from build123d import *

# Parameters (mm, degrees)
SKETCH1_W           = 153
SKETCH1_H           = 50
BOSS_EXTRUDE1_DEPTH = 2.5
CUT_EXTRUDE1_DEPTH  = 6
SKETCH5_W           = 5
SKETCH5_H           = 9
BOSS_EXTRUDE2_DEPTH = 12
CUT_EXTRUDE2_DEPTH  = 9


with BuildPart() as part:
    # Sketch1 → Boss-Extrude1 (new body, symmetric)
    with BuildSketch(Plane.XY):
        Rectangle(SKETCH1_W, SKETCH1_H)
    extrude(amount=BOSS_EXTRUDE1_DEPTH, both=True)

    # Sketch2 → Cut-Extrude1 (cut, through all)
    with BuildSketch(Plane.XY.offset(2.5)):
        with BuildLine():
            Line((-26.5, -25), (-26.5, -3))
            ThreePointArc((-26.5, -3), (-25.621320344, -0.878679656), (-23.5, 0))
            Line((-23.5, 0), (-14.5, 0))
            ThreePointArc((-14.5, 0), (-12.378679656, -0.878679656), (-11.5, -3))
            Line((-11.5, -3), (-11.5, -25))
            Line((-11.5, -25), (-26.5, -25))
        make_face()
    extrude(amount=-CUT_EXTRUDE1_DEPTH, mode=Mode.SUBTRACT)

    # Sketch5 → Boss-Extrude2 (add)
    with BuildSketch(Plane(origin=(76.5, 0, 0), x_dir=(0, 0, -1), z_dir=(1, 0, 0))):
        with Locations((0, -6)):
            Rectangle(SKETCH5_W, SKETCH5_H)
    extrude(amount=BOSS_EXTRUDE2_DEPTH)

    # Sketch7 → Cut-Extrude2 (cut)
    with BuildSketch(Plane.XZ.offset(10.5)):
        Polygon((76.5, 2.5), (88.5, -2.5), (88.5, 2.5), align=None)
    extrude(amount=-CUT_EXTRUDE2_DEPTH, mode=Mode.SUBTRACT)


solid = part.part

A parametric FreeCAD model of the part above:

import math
import FreeCAD as App
import Part
import Sketcher

doc = App.newDocument("Part")
params = doc.addObject("Spreadsheet::Sheet", "Params")
for row, (alias, value) in enumerate([
    ("sketch1_width", "153 mm"),
    ("sketch1_height", "50 mm"),
    ("pad1_length", "5 mm"),
    ("sketch2_radius", "3 mm"),
    ("sketch2_width", "15 mm"),
    ("sketch2_height", "22 mm"),
    ("sketch3_width", "9 mm"),
    ("sketch3_height", "5 mm"),
    ("pad2_length", "12 mm"),
    ("sketch4_width", "12 mm"),
    ("sketch4_height", "5 mm"),
    ("pocket2_length", "9 mm"),
], start=1):
    params.set(f"A{row}", alias)
    params.set(f"B{row}", "=" + value)
    params.setAlias(f"B{row}", alias)

body = doc.addObject("PartDesign::Body", "Body")

# Sketch on XY plane
sketch1 = body.newObject("Sketcher::SketchObject", "Sketch")
sketch1.AttachmentSupport = (doc.getObject("XY_Plane"), [""])
sketch1.MapMode = "FlatFace"
sketch1.addGeometry(Part.LineSegment(App.Vector(-76, 25, 0), App.Vector(-76, -25, 0)), False)
sketch1.addGeometry(Part.LineSegment(App.Vector(-76, -25, 0), App.Vector(76, -25, 0)), False)
sketch1.addGeometry(Part.LineSegment(App.Vector(76, -25, 0), App.Vector(76, 25, 0)), False)
sketch1.addGeometry(Part.LineSegment(App.Vector(76, 25, 0), App.Vector(-76, 25, 0)), False)
sketch1.addConstraint(Sketcher.Constraint("Coincident", 0, 2, 1, 1))
sketch1.addConstraint(Sketcher.Constraint("Coincident", 1, 2, 2, 1))
sketch1.addConstraint(Sketcher.Constraint("Coincident", 2, 2, 3, 1))
sketch1.addConstraint(Sketcher.Constraint("Coincident", 3, 2, 0, 1))
sketch1.addConstraint(Sketcher.Constraint("Vertical", 0))
sketch1.addConstraint(Sketcher.Constraint("Horizontal", 1))
sketch1.addConstraint(Sketcher.Constraint("Vertical", 2))
sketch1.addConstraint(Sketcher.Constraint("Horizontal", 3))
sketch1.addConstraint(Sketcher.Constraint("Symmetric", 0, 2, 2, 2, -1, 1))
sketch1.addConstraint(Sketcher.Constraint("DistanceX", 1, 1, 1, 2, 153.0))
sketch1.addConstraint(Sketcher.Constraint("DistanceY", 0, 2, 0, 1, 50.0))
sketch1.setExpression("Constraints[9]", "Params.sketch1_width")
sketch1.setExpression("Constraints[10]", "Params.sketch1_height")
pad1 = body.newObject("PartDesign::Pad", "Pad")
pad1.Profile = sketch1
pad1.setExpression("Length", "Params.pad1_length")
pad1.Midplane = True

# Sketch on XY plane
sketch2 = body.newObject("Sketcher::SketchObject", "Sketch001")
sketch2.AttachmentSupport = (doc.getObject("XY_Plane"), [""])
sketch2.MapMode = "FlatFace"
sketch2.AttachmentOffset = App.Placement(App.Vector(0, 0, 2.5), App.Rotation())
sketch2.addGeometry(Part.LineSegment(App.Vector(-26.5, -3, 0), App.Vector(-26.5, -25, 0)), False)
sketch2.addGeometry(Part.LineSegment(App.Vector(-26.5, -25, 0), App.Vector(-11.5, -25, 0)), False)
sketch2.addGeometry(Part.LineSegment(App.Vector(-11.5, -25, 0), App.Vector(-11.5, -3, 0)), False)
sketch2.addGeometry(Part.ArcOfCircle(Part.Circle(App.Vector(-14.5, -3, 0), App.Vector(0, 0, 1), 3), math.radians(0), math.radians(90)), False)
sketch2.addGeometry(Part.LineSegment(App.Vector(-14.5, 0, 0), App.Vector(-23.5, 0, 0)), False)
sketch2.addGeometry(Part.ArcOfCircle(Part.Circle(App.Vector(-23.5, -3, 0), App.Vector(0, 0, 1), 3), math.radians(90), math.radians(180)), False)
sketch2.addConstraint(Sketcher.Constraint("Coincident", 0, 2, 1, 1))
sketch2.addConstraint(Sketcher.Constraint("Coincident", 1, 2, 2, 1))
sketch2.addConstraint(Sketcher.Constraint("Tangent", 2, 2, 3, 1))
sketch2.addConstraint(Sketcher.Constraint("Tangent", 3, 2, 4, 1))
sketch2.addConstraint(Sketcher.Constraint("Tangent", 4, 2, 5, 1))
sketch2.addConstraint(Sketcher.Constraint("Tangent", 5, 2, 0, 1))
sketch2.addConstraint(Sketcher.Constraint("Vertical", 0))
sketch2.addConstraint(Sketcher.Constraint("Horizontal", 1))
sketch2.addConstraint(Sketcher.Constraint("Vertical", 2))
sketch2.addConstraint(Sketcher.Constraint("Horizontal", 4))
sketch2.addConstraint(Sketcher.Constraint("Equal", 3, 5))
sketch2.addConstraint(Sketcher.Constraint("PointOnObject", 3, 2, -1))
sketch2.addConstraint(Sketcher.Constraint("Radius", 3, 3.0))
sketch2.addConstraint(Sketcher.Constraint("DistanceX", 1, 1, 1, 2, 15.0))
sketch2.addConstraint(Sketcher.Constraint("DistanceY", 0, 2, 0, 1, 22.0))
sketch2.addConstraint(Sketcher.Constraint("DistanceX", 3, 3, -1, 1, 14.5))
sketch2.setExpression("Constraints[12]", "Params.sketch2_radius")
sketch2.setExpression("Constraints[13]", "Params.sketch2_width")
sketch2.setExpression("Constraints[14]", "Params.sketch2_height")
pocket1 = body.newObject("PartDesign::Pocket", "Pocket")
pocket1.Profile = sketch2
pocket1.Type = "ThroughAll"

# Sketch on YZ plane
sketch3 = body.newObject("Sketcher::SketchObject", "Sketch002")
sketch3.AttachmentSupport = (doc.getObject("YZ_Plane"), [""])
sketch3.MapMode = "FlatFace"
sketch3.AttachmentOffset = App.Placement(App.Vector(0, 0, 76.5), App.Rotation())
sketch3.addGeometry(Part.LineSegment(App.Vector(-2, 2, 0), App.Vector(-10, 2, 0)), False)
sketch3.addGeometry(Part.LineSegment(App.Vector(-10, 2, 0), App.Vector(-10, -2, 0)), False)
sketch3.addGeometry(Part.LineSegment(App.Vector(-10, -2, 0), App.Vector(-2, -2, 0)), False)
sketch3.addGeometry(Part.LineSegment(App.Vector(-2, -2, 0), App.Vector(-2, 2, 0)), False)
sketch3.addConstraint(Sketcher.Constraint("Coincident", 0, 2, 1, 1))
sketch3.addConstraint(Sketcher.Constraint("Coincident", 1, 2, 2, 1))
sketch3.addConstraint(Sketcher.Constraint("Coincident", 2, 2, 3, 1))
sketch3.addConstraint(Sketcher.Constraint("Coincident", 3, 2, 0, 1))
sketch3.addConstraint(Sketcher.Constraint("Horizontal", 0))
sketch3.addConstraint(Sketcher.Constraint("Vertical", 1))
sketch3.addConstraint(Sketcher.Constraint("Horizontal", 2))
sketch3.addConstraint(Sketcher.Constraint("Vertical", 3))
sketch3.addConstraint(Sketcher.Constraint("DistanceX", 0, 2, 0, 1, 9.0))
sketch3.addConstraint(Sketcher.Constraint("DistanceY", 1, 2, 1, 1, 5.0))
sketch3.addConstraint(Sketcher.Constraint("DistanceX", 0, 2, -1, 1, 10.5))
sketch3.addConstraint(Sketcher.Constraint("DistanceY", -1, 1, 0, 2, 2.5))
sketch3.setExpression("Constraints[8]", "Params.sketch3_width")
sketch3.setExpression("Constraints[9]", "Params.sketch3_height")
pad2 = body.newObject("PartDesign::Pad", "Pad001")
pad2.Profile = sketch3
pad2.setExpression("Length", "Params.pad2_length")

# Sketch on XZ plane
sketch4 = body.newObject("Sketcher::SketchObject", "Sketch003")
sketch4.AttachmentSupport = (doc.getObject("XZ_Plane"), [""])
sketch4.MapMode = "FlatFace"
sketch4.AttachmentOffset = App.Placement(App.Vector(0, 0, 10.5), App.Rotation())
sketch4.addGeometry(Part.LineSegment(App.Vector(76, 2, 0), App.Vector(88, -2, 0)), False)
sketch4.addGeometry(Part.LineSegment(App.Vector(88, -2, 0), App.Vector(88, 2, 0)), False)
sketch4.addGeometry(Part.LineSegment(App.Vector(88, 2, 0), App.Vector(76, 2, 0)), False)
sketch4.addConstraint(Sketcher.Constraint("Coincident", 0, 2, 1, 1))
sketch4.addConstraint(Sketcher.Constraint("Coincident", 1, 2, 2, 1))
sketch4.addConstraint(Sketcher.Constraint("Coincident", 2, 2, 0, 1))
sketch4.addConstraint(Sketcher.Constraint("Vertical", 1))
sketch4.addConstraint(Sketcher.Constraint("Horizontal", 2))
sketch4.addConstraint(Sketcher.Constraint("DistanceX", 2, 2, 2, 1, 12.0))
sketch4.addConstraint(Sketcher.Constraint("DistanceY", 1, 1, 1, 2, 5.0))
sketch4.addConstraint(Sketcher.Constraint("DistanceX", -1, 1, 0, 2, 88.5))
sketch4.addConstraint(Sketcher.Constraint("DistanceY", 0, 2, -1, 1, 2.5))
sketch4.setExpression("Constraints[5]", "Params.sketch4_width")
sketch4.setExpression("Constraints[6]", "Params.sketch4_height")
pocket2 = body.newObject("PartDesign::Pocket", "Pocket001")
pocket2.Profile = sketch4
pocket2.setExpression("Length", "Params.pocket2_length")

doc.recompute()
